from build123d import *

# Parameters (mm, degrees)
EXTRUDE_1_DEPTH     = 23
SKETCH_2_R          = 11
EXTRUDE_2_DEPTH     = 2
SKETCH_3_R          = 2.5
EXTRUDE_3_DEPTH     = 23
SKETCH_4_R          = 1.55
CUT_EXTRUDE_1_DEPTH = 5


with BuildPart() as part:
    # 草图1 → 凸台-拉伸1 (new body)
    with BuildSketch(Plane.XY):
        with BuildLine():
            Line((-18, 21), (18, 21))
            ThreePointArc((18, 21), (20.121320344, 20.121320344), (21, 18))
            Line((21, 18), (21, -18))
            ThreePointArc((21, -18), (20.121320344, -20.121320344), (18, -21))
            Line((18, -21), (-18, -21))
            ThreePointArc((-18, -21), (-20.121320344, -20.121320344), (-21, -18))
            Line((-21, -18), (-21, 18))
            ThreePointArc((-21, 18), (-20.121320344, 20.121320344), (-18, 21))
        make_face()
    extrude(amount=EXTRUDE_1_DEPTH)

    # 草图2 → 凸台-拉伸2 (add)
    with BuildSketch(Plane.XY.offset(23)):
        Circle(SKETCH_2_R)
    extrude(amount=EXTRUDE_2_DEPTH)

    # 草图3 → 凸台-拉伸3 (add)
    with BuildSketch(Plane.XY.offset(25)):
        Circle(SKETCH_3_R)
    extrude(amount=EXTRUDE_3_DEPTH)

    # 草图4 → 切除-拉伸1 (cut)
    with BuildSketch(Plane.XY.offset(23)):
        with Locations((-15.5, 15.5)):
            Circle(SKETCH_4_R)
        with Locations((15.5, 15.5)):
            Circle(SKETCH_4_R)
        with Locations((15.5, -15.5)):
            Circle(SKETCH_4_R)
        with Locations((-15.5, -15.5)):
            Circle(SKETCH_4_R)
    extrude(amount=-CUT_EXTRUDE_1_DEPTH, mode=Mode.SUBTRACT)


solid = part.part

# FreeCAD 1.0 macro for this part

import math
import FreeCAD as App
import Part
import Sketcher
Q = App.Units.Quantity

doc = App.newDocument("Part")
params = doc.addObject("Spreadsheet::Sheet", "Params")
for row, (alias, value) in enumerate([
    ("sketch1_radius", "3 mm"),
    ("sketch1_width", "36 mm"),
    ("pad1_length", "23 mm"),
    ("sketch2_diameter", "22 mm"),
    ("pad2_length", "2 mm"),
    ("sketch3_diameter", "5 mm"),
    ("pad3_length", "23 mm"),
    ("sketch4_diameter", "3.1 mm"),
    ("pocket1_length", "5 mm"),
], start=1):
    params.set(f"A{row}", alias)
    params.set(f"B{row}", "=" + value)
    params.setAlias(f"B{row}", alias)

body = doc.addObject("PartDesign::Body", "Body")

# Sketch on XY plane
sketch1 = doc.addObject("Sketcher::SketchObject", "Sketch")
body.addObject(sketch1)
sketch1.AttachmentSupport = (doc.XY_Plane, [""])
sketch1.MapMode = "FlatFace"
sketch1.addGeometry([
    Part.LineSegment(App.Vector(18, 21, 0), App.Vector(-18, 21, 0)),  # 0
    Part.ArcOfCircle(Part.Circle(App.Vector(-18, 18, 0), App.Vector(0, 0, 1), 3), math.radians(90), math.radians(180)),  # 1
    Part.LineSegment(App.Vector(-21, 18, 0), App.Vector(-21, -18, 0)),  # 2
    Part.ArcOfCircle(Part.Circle(App.Vector(-18, -18, 0), App.Vector(0, 0, 1), 3), math.radians(180), math.radians(270)),  # 3
    Part.LineSegment(App.Vector(-18, -21, 0), App.Vector(18, -21, 0)),  # 4
    Part.ArcOfCircle(Part.Circle(App.Vector(18, -18, 0), App.Vector(0, 0, 1), 3), math.radians(-90), math.radians(0)),  # 5
    Part.LineSegment(App.Vector(21, -18, 0), App.Vector(21, 18, 0)),  # 6
    Part.ArcOfCircle(Part.Circle(App.Vector(18, 18, 0), App.Vector(0, 0, 1), 3), math.radians(0), math.radians(90)),  # 7
], False)
sketch1.addConstraint([
    Sketcher.Constraint("Tangent", 0, 2, 1, 1),
    Sketcher.Constraint("Tangent", 1, 2, 2, 1),
    Sketcher.Constraint("Tangent", 2, 2, 3, 1),
    Sketcher.Constraint("Tangent", 3, 2, 4, 1),
    Sketcher.Constraint("Tangent", 4, 2, 5, 1),
    Sketcher.Constraint("Tangent", 5, 2, 6, 1),
    Sketcher.Constraint("Tangent", 6, 2, 7, 1),
    Sketcher.Constraint("Tangent", 7, 2, 0, 1),
    Sketcher.Constraint("Horizontal", 0),
    Sketcher.Constraint("Vertical", 2),
    Sketcher.Constraint("Horizontal", 4),
    Sketcher.Constraint("Vertical", 6),
    Sketcher.Constraint("Equal", 1, 3),
    Sketcher.Constraint("Equal", 3, 5),
    Sketcher.Constraint("Equal", 5, 7),
    Sketcher.Constraint("Symmetric", 1, 3, 5, 3, -1, 1),
    Sketcher.Constraint("Equal", 4, 2),
    Sketcher.Constraint("Radius", 1, Q("3 mm")),
    Sketcher.Constraint("DistanceX", 0, 2, 0, 1, Q("36 mm")),
])
sketch1.setExpression("Constraints[17]", "Params.sketch1_radius")
sketch1.setExpression("Constraints[18]", "Params.sketch1_width")
pad1 = doc.addObject("PartDesign::Pad", "Pad")
body.addObject(pad1)
pad1.Profile = sketch1
pad1.setExpression("Length", "Params.pad1_length")

# Sketch on XY plane
sketch2 = doc.addObject("Sketcher::SketchObject", "Sketch001")
body.addObject(sketch2)
sketch2.AttachmentSupport = (doc.XY_Plane, [""])
sketch2.MapMode = "FlatFace"
sketch2.AttachmentOffset = App.Placement(App.Vector(0, 0, 23), App.Rotation())
sketch2.addGeometry(Part.Circle(App.Vector(0, 0, 0), App.Vector(0, 0, 1), 11), False)
sketch2.addConstraint([
    Sketcher.Constraint("Coincident", 0, 3, -1, 1),
    Sketcher.Constraint("Diameter", 0, Q("22 mm")),
])
sketch2.setExpression("Constraints[1]", "Params.sketch2_diameter")
pad2 = doc.addObject("PartDesign::Pad", "Pad001")
body.addObject(pad2)
pad2.Profile = sketch2
pad2.setExpression("Length", "Params.pad2_length")

# Sketch on XY plane
sketch3 = doc.addObject("Sketcher::SketchObject", "Sketch002")
body.addObject(sketch3)
sketch3.AttachmentSupport = (doc.XY_Plane, [""])
sketch3.MapMode = "FlatFace"
sketch3.AttachmentOffset = App.Placement(App.Vector(0, 0, 25), App.Rotation())
sketch3.addGeometry(Part.Circle(App.Vector(0, 0, 0), App.Vector(0, 0, 1), 2.5), False)
sketch3.addConstraint([
    Sketcher.Constraint("Coincident", 0, 3, -1, 1),
    Sketcher.Constraint("Diameter", 0, Q("5 mm")),
])
sketch3.setExpression("Constraints[1]", "Params.sketch3_diameter")
pad3 = doc.addObject("PartDesign::Pad", "Pad002")
body.addObject(pad3)
pad3.Profile = sketch3
pad3.setExpression("Length", "Params.pad3_length")

# Sketch on XY plane
sketch4 = doc.addObject("Sketcher::SketchObject", "Sketch003")
body.addObject(sketch4)
sketch4.AttachmentSupport = (doc.XY_Plane, [""])
sketch4.MapMode = "FlatFace"
sketch4.AttachmentOffset = App.Placement(App.Vector(0, 0, 23), App.Rotation())
sketch4.addGeometry([
    Part.Circle(App.Vector(-15.5, 15.5, 0), App.Vector(0, 0, 1), 1.55),
    Part.Circle(App.Vector(15.5, 15.5, 0), App.Vector(0, 0, 1), 1.55),
    Part.Circle(App.Vector(15.5, -15.5, 0), App.Vector(0, 0, 1), 1.55),
    Part.Circle(App.Vector(-15.5, -15.5, 0), App.Vector(0, 0, 1), 1.55),
], False)
sketch4.addConstraint([
    Sketcher.Constraint("Equal", 0, 1),
    Sketcher.Constraint("Equal", 1, 2),
    Sketcher.Constraint("Equal", 2, 3),
    Sketcher.Constraint("Symmetric", 0, 3, 2, 3, -1, 1),
    Sketcher.Constraint("Symmetric", 1, 3, 3, 3, -1, 1),
    Sketcher.Constraint("Symmetric", 0, 3, 1, 3, -2),
    Sketcher.Constraint("Diameter", 0, Q("3.1 mm")),
    Sketcher.Constraint("DistanceX", 0, 3, 1, 3, Q("31 mm")),
    Sketcher.Constraint("DistanceY", 2, 3, 1, 3, Q("31 mm")),
])
sketch4.setExpression("Constraints[6]", "Params.sketch4_diameter")
pocket1 = doc.addObject("PartDesign::Pocket", "Pocket")
body.addObject(pocket1)
pocket1.Profile = sketch4
pocket1.setExpression("Length", "Params.pocket1_length")

doc.recompute()
